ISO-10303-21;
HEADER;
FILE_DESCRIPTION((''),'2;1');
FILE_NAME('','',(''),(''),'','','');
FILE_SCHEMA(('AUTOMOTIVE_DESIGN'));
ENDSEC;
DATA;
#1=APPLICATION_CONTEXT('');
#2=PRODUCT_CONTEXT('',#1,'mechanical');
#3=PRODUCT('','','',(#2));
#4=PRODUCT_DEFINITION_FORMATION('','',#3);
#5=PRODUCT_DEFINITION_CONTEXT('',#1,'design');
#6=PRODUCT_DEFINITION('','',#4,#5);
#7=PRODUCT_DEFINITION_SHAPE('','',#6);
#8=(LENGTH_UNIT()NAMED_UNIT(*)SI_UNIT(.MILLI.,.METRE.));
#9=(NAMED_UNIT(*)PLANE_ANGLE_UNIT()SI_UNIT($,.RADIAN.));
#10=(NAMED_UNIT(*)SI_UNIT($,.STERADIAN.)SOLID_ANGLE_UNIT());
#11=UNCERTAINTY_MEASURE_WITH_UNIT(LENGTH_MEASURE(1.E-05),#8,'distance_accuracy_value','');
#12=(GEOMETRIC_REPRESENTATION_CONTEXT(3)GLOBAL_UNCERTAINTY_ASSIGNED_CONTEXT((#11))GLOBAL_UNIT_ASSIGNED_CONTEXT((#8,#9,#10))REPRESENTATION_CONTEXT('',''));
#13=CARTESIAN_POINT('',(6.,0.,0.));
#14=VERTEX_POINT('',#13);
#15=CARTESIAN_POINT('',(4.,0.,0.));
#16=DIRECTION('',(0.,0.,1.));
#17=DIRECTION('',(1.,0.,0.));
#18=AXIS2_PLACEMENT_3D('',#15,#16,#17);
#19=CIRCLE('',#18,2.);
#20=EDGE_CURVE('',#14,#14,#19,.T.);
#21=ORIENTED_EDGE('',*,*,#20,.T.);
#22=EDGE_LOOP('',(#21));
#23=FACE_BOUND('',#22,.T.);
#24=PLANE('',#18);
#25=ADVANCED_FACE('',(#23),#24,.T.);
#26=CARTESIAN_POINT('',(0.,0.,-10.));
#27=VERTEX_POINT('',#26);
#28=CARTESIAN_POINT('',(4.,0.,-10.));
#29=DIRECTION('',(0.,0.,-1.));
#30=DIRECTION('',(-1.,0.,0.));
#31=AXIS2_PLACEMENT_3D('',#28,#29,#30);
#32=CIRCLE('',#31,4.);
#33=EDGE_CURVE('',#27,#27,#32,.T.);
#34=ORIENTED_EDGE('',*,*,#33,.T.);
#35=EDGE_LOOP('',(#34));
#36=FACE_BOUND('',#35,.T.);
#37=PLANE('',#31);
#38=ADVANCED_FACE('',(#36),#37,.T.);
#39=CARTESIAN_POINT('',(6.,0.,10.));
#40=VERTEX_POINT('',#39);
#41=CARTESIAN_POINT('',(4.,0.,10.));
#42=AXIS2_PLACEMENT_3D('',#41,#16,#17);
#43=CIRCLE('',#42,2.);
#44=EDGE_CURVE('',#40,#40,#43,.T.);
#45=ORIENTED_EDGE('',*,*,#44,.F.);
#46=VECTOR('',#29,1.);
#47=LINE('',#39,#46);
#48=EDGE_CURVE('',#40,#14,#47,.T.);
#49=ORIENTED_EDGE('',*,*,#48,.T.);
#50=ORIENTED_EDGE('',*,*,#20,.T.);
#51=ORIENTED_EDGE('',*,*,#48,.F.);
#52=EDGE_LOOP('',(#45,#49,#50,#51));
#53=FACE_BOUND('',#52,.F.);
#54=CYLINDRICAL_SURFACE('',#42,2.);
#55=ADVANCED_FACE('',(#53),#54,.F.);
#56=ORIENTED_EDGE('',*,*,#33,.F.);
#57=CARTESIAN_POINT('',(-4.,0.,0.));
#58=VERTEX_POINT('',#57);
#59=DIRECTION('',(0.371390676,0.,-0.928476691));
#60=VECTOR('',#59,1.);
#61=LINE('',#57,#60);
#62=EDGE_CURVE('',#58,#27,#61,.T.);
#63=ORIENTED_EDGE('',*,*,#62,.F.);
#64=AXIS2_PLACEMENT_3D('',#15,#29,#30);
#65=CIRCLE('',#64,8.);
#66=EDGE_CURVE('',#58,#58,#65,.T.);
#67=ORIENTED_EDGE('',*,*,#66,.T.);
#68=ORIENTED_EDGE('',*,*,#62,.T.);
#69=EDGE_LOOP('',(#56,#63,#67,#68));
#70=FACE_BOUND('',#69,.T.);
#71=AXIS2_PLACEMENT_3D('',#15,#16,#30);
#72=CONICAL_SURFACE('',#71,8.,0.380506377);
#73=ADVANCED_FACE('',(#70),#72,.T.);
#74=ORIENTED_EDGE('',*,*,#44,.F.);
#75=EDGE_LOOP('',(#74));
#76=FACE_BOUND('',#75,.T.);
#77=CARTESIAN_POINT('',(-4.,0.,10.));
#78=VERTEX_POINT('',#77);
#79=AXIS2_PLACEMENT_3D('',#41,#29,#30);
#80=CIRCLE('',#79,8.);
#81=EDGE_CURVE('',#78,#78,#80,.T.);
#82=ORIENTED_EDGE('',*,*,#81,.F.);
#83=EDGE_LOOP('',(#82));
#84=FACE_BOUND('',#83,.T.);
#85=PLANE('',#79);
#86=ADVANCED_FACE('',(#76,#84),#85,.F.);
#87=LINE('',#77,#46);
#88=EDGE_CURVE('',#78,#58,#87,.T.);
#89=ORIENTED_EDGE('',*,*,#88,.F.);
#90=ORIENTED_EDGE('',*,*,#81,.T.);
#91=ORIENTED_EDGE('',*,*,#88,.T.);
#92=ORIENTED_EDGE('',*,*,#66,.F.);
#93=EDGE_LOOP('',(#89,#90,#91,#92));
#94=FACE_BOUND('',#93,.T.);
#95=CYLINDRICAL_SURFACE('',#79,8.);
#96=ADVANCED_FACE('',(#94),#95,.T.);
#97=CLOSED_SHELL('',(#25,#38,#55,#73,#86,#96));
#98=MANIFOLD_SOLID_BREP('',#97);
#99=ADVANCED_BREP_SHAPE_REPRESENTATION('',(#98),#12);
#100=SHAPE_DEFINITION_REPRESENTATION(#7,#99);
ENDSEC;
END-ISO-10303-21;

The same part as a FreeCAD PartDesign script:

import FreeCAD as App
import Part
import Sketcher

V = App.Vector


def add_polygon(sketch, points):
    """Adds a closed chain of lines whose ends are joined by coincident constraints."""
    first, n = sketch.GeometryCount, len(points)
    for a, b in zip(points, points[1:] + points[:1]):
        sketch.addGeometry(Part.LineSegment(App.Vector(*a, 0), App.Vector(*b, 0)), False)
    for i in range(n):
        sketch.addConstraint(Sketcher.Constraint("Coincident", first + i, 2, first + (i + 1) % n, 1))

doc = App.newDocument("Part")
params = doc.addObject("Spreadsheet::Sheet", "Params")
for row, (alias, value) in enumerate([
    ("sketch1_width", "8 mm"),
    ("sketch1_height", "10 mm"),
    ("revolution_angle", "360 deg"),
    ("sketch2_diameter", "4 mm"),
    ("pocket1_length", "10 mm"),
], start=1):
    params.set(f"A{row}", alias)
    params.set(f"B{row}", "=" + value)
    params.setAlias(f"B{row}", alias)

body = doc.addObject("PartDesign::Body", "Body")

sketch1 = body.newObject("Sketcher::SketchObject", "Sketch")
sketch1.AttachmentSupport = (doc.getObject("XZ_Plane"), [""])
sketch1.MapMode = "FlatFace"
add_polygon(sketch1, [(4, 10), (-4, 10), (-4, 0), (0, -10), (4, -10)])
sketch1.addGeometry(Part.LineSegment(V(4, 10, 0), V(4, -10, 0)), True)
sketch1.addConstraint([
    Sketcher.Constraint("Horizontal", 0),
    Sketcher.Constraint("Vertical", 1),
    Sketcher.Constraint("Horizontal", 3),
    Sketcher.Constraint("Vertical", 4),
    Sketcher.Constraint("Vertical", 5),
    Sketcher.Constraint("Coincident", 5, 1, 4, 2),
    Sketcher.Constraint("Symmetric", 0, 2, 3, 2, -1, 1),
    Sketcher.Constraint("PointOnObject", 1, 2, -1),
    Sketcher.Constraint("PointOnObject", 2, 2, -2),
    Sketcher.Constraint("Horizontal", 2, 2, 5, 2),
    Sketcher.Constraint("DistanceX", 0, 2, 0, 1, 8.0),
    Sketcher.Constraint("DistanceY", 1, 2, 1, 1, 10.0),
])
sketch1.setExpression("Constraints[15]", "Params.sketch1_width")
sketch1.setExpression("Constraints[16]", "Params.sketch1_height")
revolution = body.newObject("PartDesign::Revolution", "Revolution")
revolution.Profile = sketch1
revolution.ReferenceAxis = (sketch1, ["Axis0"])
revolution.setExpression("Angle", "Params.revolution_angle")

sketch2 = body.newObject("Sketcher::SketchObject", "Sketch001")
sketch2.AttachmentSupport = (doc.getObject("XY_Plane"), [""])
sketch2.MapMode = "FlatFace"
sketch2.AttachmentOffset = App.Placement(V(0, 0, 10), App.Rotation())
sketch2.addGeometry(Part.Circle(V(4, 0, 0), V(0, 0, 1), 2), False)
sketch2.addConstraint([
    Sketcher.Constraint("PointOnObject", 0, 3, -1),
    Sketcher.Constraint("Diameter", 0, 4.0),
    Sketcher.Constraint("DistanceX", -1, 1, 0, 3, 4.0),
])
sketch2.setExpression("Constraints[1]", "Params.sketch2_diameter")
pocket1 = body.newObject("PartDesign::Pocket", "Pocket")
pocket1.Profile = sketch2
pocket1.setExpression("Length", "Params.pocket1_length")

doc.recompute()
